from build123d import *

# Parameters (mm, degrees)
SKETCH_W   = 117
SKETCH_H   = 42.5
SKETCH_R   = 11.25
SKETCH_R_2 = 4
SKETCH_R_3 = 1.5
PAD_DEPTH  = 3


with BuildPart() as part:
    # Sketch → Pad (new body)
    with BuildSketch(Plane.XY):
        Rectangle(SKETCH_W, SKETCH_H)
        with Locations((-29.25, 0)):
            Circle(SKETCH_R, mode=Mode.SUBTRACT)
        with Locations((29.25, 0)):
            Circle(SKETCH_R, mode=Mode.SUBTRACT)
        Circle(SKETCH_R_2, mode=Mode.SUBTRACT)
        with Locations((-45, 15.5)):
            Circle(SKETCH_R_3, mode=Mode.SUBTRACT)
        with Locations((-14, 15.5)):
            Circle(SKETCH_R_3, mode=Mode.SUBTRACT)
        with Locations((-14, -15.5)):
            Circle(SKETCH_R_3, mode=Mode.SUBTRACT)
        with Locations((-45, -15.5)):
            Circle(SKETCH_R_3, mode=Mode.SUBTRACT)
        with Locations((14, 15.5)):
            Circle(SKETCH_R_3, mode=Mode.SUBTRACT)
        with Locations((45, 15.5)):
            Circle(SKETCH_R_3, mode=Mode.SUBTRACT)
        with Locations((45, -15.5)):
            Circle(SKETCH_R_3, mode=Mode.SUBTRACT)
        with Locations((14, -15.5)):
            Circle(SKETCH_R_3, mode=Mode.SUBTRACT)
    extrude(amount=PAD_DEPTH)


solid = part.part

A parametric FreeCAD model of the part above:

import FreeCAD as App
import Part
import Sketcher
from FreeCAD import Vector
Q = App.Units.Quantity

doc = App.newDocument("Part")
body = doc.addObject("PartDesign::Body", "Body")

# Sketch on XY plane
sketch1 = body.newObject("Sketcher::SketchObject", "Sketch")
sketch1.AttachmentSupport = (doc.getObject("XY_Plane"), [""])
sketch1.MapMode = "FlatFace"
sketch1.addGeometry(Part.LineSegment(Vector(-58.5, 21.2, 0), Vector(-58.5, -21.2, 0)), False)
sketch1.addGeometry(Part.LineSegment(Vector(-58.5, -21.2, 0), Vector(58.5, -21.2, 0)), False)
sketch1.addGeometry(Part.LineSegment(Vector(58.5, -21.2, 0), Vector(58.5, 21.2, 0)), False)
sketch1.addGeometry(Part.LineSegment(Vector(58.5, 21.2, 0), Vector(-58.5, 21.2, 0)), False)
sketch1.addGeometry(Part.Circle(Vector(-45, -15.5, 0), Vector(0, 0, 1), 1.5), False)
sketch1.addGeometry(Part.Circle(Vector(-14, -15.5, 0), Vector(0, 0, 1), 1.5), False)
sketch1.addGeometry(Part.Circle(Vector(14, -15.5, 0), Vector(0, 0, 1), 1.5), False)
sketch1.addGeometry(Part.Circle(Vector(45, -15.5, 0), Vector(0, 0, 1), 1.5), False)
sketch1.addGeometry(Part.Circle(Vector(-29.2, 0, 0), Vector(0, 0, 1), 11.2), False)
sketch1.addGeometry(Part.Circle(Vector(-45, 15.5, 0), Vector(0, 0, 1), 1.5), False)
sketch1.addGeometry(Part.Circle(Vector(-14, 15.5, 0), Vector(0, 0, 1), 1.5), False)
sketch1.addGeometry(Part.Circle(Vector(0, 0, 0), Vector(0, 0, 1), 4), False)
sketch1.addGeometry(Part.Circle(Vector(29.2, 0, 0), Vector(0, 0, 1), 11.2), False)
sketch1.addGeometry(Part.Circle(Vector(14, 15.5, 0), Vector(0, 0, 1), 1.5), False)
sketch1.addGeometry(Part.Circle(Vector(45, 15.5, 0), Vector(0, 0, 1), 1.5), False)
sketch1.addConstraint(Sketcher.Constraint("Coincident", 0, 2, 1, 1))
sketch1.addConstraint(Sketcher.Constraint("Coincident", 1, 2, 2, 1))
sketch1.addConstraint(Sketcher.Constraint("Coincident", 2, 2, 3, 1))
sketch1.addConstraint(Sketcher.Constraint("Coincident", 3, 2, 0, 1))
sketch1.addConstraint(Sketcher.Constraint("Vertical", 0))
sketch1.addConstraint(Sketcher.Constraint("Horizontal", 1))
sketch1.addConstraint(Sketcher.Constraint("Vertical", 2))
sketch1.addConstraint(Sketcher.Constraint("Horizontal", 3))
sketch1.addConstraint(Sketcher.Constraint("Coincident", 11, 3, -1, 1))
sketch1.addConstraint(Sketcher.Constraint("Equal", 4, 5))
sketch1.addConstraint(Sketcher.Constraint("Equal", 5, 6))
sketch1.addConstraint(Sketcher.Constraint("Equal", 6, 7))
sketch1.addConstraint(Sketcher.Constraint("Equal", 7, 9))
sketch1.addConstraint(Sketcher.Constraint("Equal", 9, 10))
sketch1.addConstraint(Sketcher.Constraint("Equal", 8, 12))
sketch1.addConstraint(Sketcher.Constraint("Equal", 10, 13))
sketch1.addConstraint(Sketcher.Constraint("Equal", 13, 14))
sketch1.addConstraint(Sketcher.Constraint("Symmetric", 7, 3, 9, 3, -1, 1))
sketch1.addConstraint(Sketcher.Constraint("Symmetric", 6, 3, 10, 3, -1, 1))
sketch1.addConstraint(Sketcher.Constraint("Symmetric", 8, 3, 12, 3, -1, 1))
sketch1.addConstraint(Sketcher.Constraint("Symmetric", 5, 3, 13, 3, -1, 1))
sketch1.addConstraint(Sketcher.Constraint("Symmetric", 4, 3, 14, 3, -1, 1))
sketch1.addConstraint(Sketcher.Constraint("Symmetric", 0, 2, 2, 2, -1, 1))
sketch1.addConstraint(Sketcher.Constraint("Symmetric", 5, 3, 6, 3, -2))
sketch1.addConstraint(Sketcher.Constraint("Symmetric", 4, 3, 7, 3, -2))
sketch1.addConstraint(Sketcher.Constraint("PointOnObject", 8, 3, -1))
sketch1.addConstraint(Sketcher.Constraint("Horizontal", 4, 3, 5, 3))
sketch1.addConstraint(Sketcher.Constraint("Diameter", 4, Q("3 mm")))
sketch1.addConstraint(Sketcher.Constraint("Diameter", 11, Q("8 mm")))
sketch1.addConstraint(Sketcher.Constraint("Diameter", 8, Q("22.5 mm")))
sketch1.addConstraint(Sketcher.Constraint("DistanceX", 1, 1, 1, 2, Q("117 mm")))
sketch1.addConstraint(Sketcher.Constraint("DistanceY", 0, 2, 0, 1, Q("42.5 mm")))
sketch1.addConstraint(Sketcher.Constraint("DistanceX", 4, 3, -1, 1, Q("45 mm")))
sketch1.addConstraint(Sketcher.Constraint("DistanceX", 5, 3, -1, 1, Q("14 mm")))
sketch1.addConstraint(Sketcher.Constraint("DistanceY", 4, 3, 9, 3, Q("31 mm")))
sketch1.addConstraint(Sketcher.Constraint("DistanceX", 8, 3, -1, 1, Q("29.25 mm")))
pad1 = body.newObject("PartDesign::Pad", "Pad")
pad1.Profile = sketch1
pad1.Length = 3

doc.recompute()
